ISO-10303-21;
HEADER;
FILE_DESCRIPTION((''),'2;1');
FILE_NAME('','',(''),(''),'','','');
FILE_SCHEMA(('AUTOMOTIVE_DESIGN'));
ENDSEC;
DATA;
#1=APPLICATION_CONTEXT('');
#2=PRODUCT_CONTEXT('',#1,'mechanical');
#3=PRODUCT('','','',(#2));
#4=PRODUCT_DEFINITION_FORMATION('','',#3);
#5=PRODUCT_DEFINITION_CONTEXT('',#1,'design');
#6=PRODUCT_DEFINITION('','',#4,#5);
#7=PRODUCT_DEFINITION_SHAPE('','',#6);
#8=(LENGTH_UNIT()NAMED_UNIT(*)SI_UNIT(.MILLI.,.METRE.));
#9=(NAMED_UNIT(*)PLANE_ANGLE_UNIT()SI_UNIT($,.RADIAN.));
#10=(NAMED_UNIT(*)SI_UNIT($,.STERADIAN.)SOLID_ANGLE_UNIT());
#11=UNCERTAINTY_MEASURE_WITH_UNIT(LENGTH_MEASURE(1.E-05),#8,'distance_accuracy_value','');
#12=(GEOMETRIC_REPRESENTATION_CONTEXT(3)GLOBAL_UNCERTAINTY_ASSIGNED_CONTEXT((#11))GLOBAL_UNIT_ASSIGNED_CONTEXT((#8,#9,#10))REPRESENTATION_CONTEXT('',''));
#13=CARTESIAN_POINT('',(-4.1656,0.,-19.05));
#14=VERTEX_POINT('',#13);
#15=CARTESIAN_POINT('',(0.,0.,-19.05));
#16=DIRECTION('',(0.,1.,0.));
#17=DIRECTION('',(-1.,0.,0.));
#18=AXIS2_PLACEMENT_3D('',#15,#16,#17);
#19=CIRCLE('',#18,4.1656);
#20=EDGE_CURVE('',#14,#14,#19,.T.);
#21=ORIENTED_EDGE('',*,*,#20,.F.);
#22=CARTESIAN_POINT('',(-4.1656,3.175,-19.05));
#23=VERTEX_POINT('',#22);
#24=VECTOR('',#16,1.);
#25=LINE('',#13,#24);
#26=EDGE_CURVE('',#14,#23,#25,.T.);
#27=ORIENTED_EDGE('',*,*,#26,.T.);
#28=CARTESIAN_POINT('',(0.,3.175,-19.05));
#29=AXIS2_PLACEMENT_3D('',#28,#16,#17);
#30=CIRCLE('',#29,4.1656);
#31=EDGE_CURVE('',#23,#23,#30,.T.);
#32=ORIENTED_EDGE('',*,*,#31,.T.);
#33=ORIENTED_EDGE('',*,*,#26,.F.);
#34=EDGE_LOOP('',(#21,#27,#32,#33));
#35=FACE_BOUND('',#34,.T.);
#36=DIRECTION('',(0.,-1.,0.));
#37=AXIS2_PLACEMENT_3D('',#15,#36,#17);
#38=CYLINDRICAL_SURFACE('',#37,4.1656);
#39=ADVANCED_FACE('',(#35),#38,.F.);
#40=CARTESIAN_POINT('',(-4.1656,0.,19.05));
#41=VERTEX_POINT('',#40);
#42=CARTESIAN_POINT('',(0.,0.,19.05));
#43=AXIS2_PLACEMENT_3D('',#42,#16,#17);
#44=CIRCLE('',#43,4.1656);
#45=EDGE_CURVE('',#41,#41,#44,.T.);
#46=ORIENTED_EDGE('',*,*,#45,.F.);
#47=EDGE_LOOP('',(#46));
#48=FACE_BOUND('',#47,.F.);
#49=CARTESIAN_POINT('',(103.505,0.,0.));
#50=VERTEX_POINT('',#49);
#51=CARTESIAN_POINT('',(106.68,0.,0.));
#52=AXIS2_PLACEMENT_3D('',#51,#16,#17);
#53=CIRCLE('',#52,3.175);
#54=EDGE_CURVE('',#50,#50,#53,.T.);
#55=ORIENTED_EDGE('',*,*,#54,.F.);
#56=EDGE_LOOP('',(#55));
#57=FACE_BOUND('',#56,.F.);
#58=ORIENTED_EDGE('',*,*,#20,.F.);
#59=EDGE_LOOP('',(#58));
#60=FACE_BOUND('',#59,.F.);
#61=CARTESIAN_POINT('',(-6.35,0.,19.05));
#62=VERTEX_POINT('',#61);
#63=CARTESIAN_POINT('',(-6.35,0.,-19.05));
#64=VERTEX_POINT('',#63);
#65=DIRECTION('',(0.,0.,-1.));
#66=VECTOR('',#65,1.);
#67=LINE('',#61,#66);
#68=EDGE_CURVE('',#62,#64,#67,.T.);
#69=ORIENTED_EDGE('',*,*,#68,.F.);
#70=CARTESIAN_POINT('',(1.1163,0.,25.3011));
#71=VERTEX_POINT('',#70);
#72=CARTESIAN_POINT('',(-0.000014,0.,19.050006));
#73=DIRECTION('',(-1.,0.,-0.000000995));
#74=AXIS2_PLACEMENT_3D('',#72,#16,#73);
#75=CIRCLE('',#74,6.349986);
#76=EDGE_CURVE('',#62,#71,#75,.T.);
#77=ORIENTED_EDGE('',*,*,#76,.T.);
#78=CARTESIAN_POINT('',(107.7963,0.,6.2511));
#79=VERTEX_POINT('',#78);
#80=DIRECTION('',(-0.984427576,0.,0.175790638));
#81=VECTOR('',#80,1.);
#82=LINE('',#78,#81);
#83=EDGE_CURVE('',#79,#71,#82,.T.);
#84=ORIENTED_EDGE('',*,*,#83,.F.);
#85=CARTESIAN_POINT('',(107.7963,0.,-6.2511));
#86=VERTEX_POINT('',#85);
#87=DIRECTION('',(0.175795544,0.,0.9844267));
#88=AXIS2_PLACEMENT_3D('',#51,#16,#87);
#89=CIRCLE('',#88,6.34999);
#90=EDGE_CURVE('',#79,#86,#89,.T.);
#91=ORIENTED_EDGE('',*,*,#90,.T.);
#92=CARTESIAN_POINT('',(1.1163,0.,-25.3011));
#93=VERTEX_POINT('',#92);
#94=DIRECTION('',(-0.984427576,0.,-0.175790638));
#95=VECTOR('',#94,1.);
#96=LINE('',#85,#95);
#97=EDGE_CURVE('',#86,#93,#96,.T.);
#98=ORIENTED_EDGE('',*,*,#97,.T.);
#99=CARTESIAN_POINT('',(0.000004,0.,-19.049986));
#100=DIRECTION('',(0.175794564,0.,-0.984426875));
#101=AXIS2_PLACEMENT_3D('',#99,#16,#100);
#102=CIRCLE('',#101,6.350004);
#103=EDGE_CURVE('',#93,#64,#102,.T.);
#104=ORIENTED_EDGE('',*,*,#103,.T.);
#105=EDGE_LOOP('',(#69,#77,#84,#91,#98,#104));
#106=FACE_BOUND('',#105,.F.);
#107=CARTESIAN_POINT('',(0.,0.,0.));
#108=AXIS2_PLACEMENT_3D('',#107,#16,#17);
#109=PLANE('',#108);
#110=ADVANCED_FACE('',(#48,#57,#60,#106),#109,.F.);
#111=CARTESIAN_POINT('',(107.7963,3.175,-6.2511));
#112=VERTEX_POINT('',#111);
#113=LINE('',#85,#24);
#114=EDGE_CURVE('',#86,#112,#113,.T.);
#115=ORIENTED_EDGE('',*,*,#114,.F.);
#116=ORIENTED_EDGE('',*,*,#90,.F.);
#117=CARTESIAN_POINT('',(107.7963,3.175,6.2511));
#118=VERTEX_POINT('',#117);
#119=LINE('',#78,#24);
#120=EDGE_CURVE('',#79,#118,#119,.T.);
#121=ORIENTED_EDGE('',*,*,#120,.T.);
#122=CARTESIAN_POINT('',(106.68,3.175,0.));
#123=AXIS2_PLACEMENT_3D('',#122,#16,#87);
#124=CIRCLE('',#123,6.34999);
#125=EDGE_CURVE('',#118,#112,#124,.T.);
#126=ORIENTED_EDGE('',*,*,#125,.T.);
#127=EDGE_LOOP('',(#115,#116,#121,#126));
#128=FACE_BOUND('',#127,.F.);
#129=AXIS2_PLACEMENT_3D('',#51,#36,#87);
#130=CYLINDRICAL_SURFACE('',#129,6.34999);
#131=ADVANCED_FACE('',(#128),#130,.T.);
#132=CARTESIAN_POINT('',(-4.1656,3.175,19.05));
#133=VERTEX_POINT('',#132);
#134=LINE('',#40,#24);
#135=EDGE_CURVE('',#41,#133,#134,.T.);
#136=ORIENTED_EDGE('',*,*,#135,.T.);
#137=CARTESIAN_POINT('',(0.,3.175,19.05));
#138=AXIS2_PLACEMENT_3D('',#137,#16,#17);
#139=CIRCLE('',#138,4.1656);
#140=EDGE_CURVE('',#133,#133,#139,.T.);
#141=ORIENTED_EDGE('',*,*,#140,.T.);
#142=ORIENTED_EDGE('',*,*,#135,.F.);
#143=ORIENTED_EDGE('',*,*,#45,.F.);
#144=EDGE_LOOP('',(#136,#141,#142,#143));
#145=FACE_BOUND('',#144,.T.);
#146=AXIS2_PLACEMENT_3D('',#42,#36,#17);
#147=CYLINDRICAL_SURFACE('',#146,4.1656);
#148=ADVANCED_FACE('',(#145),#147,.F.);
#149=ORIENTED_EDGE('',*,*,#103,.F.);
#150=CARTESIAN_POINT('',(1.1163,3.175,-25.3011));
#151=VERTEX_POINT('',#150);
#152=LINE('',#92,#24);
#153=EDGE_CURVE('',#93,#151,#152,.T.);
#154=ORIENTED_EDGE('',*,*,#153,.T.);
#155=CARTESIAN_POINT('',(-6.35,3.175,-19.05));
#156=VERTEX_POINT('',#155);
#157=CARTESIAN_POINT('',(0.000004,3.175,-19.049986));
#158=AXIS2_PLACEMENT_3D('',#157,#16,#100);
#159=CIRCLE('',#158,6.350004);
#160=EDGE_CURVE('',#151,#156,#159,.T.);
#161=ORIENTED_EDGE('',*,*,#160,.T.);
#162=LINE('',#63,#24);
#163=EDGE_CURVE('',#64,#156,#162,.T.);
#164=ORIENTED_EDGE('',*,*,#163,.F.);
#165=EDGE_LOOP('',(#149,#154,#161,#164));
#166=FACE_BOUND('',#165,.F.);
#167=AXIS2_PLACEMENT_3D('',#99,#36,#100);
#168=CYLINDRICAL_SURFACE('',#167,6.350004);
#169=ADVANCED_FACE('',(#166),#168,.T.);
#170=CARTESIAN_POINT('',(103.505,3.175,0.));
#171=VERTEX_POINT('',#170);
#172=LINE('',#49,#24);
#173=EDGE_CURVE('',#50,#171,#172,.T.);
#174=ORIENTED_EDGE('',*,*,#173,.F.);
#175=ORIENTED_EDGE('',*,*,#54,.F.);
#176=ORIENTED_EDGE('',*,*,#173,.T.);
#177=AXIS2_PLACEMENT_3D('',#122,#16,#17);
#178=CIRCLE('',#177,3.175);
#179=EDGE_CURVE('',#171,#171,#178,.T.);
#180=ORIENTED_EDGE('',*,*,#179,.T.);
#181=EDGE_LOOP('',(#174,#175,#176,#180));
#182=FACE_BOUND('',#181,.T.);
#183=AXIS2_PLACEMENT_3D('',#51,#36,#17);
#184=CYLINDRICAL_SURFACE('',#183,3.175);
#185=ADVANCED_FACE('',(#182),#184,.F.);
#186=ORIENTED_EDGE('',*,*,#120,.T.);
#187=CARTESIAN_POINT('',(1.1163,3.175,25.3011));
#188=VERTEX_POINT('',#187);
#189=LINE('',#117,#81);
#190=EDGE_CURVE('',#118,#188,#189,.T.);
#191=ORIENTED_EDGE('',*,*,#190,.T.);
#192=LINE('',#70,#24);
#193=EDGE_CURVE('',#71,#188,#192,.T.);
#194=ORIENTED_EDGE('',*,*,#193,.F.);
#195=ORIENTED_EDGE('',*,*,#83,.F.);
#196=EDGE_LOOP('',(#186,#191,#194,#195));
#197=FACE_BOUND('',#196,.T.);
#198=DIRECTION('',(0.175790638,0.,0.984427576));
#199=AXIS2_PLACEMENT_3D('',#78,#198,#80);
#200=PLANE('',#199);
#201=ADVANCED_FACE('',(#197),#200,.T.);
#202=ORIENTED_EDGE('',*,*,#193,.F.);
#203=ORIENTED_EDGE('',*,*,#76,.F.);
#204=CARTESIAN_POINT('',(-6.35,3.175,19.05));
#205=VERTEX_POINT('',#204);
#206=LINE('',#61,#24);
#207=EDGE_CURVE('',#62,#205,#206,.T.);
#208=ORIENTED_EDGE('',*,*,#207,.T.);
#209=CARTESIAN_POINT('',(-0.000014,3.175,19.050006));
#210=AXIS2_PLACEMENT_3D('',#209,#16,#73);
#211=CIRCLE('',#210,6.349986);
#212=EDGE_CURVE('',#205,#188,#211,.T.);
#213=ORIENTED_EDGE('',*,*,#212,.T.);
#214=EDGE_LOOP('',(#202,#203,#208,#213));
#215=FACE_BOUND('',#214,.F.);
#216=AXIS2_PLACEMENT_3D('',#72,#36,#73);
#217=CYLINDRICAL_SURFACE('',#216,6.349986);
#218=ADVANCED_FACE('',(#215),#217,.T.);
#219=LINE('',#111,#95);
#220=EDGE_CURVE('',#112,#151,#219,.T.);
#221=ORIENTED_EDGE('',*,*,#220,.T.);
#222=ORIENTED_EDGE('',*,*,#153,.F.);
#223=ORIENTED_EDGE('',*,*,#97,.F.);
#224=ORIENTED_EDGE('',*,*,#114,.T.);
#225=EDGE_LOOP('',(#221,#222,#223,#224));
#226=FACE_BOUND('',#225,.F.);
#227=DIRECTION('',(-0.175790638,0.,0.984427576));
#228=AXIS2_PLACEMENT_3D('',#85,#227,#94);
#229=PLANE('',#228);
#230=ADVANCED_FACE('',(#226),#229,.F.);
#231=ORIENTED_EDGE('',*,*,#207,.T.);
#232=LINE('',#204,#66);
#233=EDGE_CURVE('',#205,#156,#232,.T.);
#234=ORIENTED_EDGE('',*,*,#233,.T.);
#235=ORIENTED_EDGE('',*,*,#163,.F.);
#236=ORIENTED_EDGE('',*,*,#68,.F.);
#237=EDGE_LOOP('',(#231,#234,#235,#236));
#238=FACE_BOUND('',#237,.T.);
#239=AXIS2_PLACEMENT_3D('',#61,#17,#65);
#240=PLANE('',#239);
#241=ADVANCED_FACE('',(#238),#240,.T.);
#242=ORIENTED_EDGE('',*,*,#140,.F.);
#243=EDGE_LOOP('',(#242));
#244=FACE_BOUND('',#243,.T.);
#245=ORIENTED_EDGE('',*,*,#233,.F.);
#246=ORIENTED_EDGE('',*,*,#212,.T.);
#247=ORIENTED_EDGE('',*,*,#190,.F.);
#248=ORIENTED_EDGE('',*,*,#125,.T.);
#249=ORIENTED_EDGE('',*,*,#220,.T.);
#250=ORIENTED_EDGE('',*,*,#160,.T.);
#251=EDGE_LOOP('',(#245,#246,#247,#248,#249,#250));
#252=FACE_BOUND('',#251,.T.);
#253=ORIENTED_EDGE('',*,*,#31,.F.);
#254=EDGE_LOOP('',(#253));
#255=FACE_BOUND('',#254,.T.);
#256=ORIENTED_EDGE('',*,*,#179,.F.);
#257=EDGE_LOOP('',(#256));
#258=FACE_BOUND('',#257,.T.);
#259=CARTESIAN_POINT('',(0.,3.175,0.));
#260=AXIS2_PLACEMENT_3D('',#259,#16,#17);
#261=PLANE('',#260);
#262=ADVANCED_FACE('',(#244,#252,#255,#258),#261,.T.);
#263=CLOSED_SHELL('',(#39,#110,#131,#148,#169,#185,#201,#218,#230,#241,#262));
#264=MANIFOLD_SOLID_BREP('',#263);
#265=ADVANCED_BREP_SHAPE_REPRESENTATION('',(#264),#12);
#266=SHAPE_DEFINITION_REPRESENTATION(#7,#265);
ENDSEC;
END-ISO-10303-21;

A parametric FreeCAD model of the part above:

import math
import FreeCAD as App
import Part
import Sketcher
Q = App.Units.Quantity

doc = App.newDocument("Part")
body = doc.addObject("PartDesign::Body", "Body")

sketch1 = body.newObject("Sketcher::SketchObject", "Sketch")
sketch1.AttachmentSupport = (doc.getObject("XZ_Plane"), [""])
sketch1.MapMode = "FlatFace"
sketch1.addGeometry([
    Part.LineSegment(App.Vector(-6.3, -19.1, 0), App.Vector(-6.3, 19.1, 0)),
    Part.ArcOfCircle(Part.Circle(App.Vector(0, 19.1, 0), App.Vector(0, 0, 1), 6.3), math.radians(80), math.radians(180)),
    Part.LineSegment(App.Vector(1.1, 25.3, 0), App.Vector(107.8, 6.3, 0)),
    Part.ArcOfCircle(Part.Circle(App.Vector(106.7, 0, 0), App.Vector(0, 0, 1), 6.3), math.radians(-80), math.radians(80)),
    Part.LineSegment(App.Vector(107.8, -6.3, 0), App.Vector(1.1, -25.3, 0)),
    Part.ArcOfCircle(Part.Circle(App.Vector(0, -19.1, 0), App.Vector(0, 0, 1), 6.3), math.radians(180), math.radians(280)),
    Part.Circle(App.Vector(106.7, 0, 0), App.Vector(0, 0, 1), 3.2),
    Part.Circle(App.Vector(0, -19.1, 0), App.Vector(0, 0, 1), 4.2),
    Part.Circle(App.Vector(0, 19.1, 0), App.Vector(0, 0, 1), 4.2),
], False)
sketch1.addConstraint([
    Sketcher.Constraint("Tangent", 0, 2, 1, 2),
    Sketcher.Constraint("Tangent", 1, 1, 2, 1),
    Sketcher.Constraint("Tangent", 2, 2, 3, 2),
    Sketcher.Constraint("Tangent", 3, 1, 4, 1),
    Sketcher.Constraint("Tangent", 4, 2, 5, 2),
    Sketcher.Constraint("Tangent", 5, 1, 0, 1),
    Sketcher.Constraint("Vertical", 0),
    Sketcher.Constraint("Coincident", 6, 3, 3, 3),
    Sketcher.Constraint("Coincident", 7, 3, 5, 3),
    Sketcher.Constraint("Coincident", 8, 3, 1, 3),
    Sketcher.Constraint("Equal", 1, 3),
    Sketcher.Constraint("Equal", 3, 5),
    Sketcher.Constraint("Equal", 7, 8),
    Sketcher.Constraint("Symmetric", 1, 3, 5, 3, -1, 1),
    Sketcher.Constraint("PointOnObject", 3, 3, -1),
    Sketcher.Constraint("Diameter", 6, Q("0.25 in")),
    Sketcher.Constraint("Radius", 1, Q("0.25 in")),
    Sketcher.Constraint("Diameter", 7, Q("0.328 in")),
    Sketcher.Constraint("DistanceY", 0, 1, 0, 2, Q("1.5 in")),
    Sketcher.Constraint("DistanceX", -1, 1, 3, 3, Q("4.2 in")),
])
pad1 = body.newObject("PartDesign::Pad", "Pad")
pad1.Profile = sketch1
pad1.Length = Q("0.125 in")
pad1.Reversed = True

doc.recompute()
